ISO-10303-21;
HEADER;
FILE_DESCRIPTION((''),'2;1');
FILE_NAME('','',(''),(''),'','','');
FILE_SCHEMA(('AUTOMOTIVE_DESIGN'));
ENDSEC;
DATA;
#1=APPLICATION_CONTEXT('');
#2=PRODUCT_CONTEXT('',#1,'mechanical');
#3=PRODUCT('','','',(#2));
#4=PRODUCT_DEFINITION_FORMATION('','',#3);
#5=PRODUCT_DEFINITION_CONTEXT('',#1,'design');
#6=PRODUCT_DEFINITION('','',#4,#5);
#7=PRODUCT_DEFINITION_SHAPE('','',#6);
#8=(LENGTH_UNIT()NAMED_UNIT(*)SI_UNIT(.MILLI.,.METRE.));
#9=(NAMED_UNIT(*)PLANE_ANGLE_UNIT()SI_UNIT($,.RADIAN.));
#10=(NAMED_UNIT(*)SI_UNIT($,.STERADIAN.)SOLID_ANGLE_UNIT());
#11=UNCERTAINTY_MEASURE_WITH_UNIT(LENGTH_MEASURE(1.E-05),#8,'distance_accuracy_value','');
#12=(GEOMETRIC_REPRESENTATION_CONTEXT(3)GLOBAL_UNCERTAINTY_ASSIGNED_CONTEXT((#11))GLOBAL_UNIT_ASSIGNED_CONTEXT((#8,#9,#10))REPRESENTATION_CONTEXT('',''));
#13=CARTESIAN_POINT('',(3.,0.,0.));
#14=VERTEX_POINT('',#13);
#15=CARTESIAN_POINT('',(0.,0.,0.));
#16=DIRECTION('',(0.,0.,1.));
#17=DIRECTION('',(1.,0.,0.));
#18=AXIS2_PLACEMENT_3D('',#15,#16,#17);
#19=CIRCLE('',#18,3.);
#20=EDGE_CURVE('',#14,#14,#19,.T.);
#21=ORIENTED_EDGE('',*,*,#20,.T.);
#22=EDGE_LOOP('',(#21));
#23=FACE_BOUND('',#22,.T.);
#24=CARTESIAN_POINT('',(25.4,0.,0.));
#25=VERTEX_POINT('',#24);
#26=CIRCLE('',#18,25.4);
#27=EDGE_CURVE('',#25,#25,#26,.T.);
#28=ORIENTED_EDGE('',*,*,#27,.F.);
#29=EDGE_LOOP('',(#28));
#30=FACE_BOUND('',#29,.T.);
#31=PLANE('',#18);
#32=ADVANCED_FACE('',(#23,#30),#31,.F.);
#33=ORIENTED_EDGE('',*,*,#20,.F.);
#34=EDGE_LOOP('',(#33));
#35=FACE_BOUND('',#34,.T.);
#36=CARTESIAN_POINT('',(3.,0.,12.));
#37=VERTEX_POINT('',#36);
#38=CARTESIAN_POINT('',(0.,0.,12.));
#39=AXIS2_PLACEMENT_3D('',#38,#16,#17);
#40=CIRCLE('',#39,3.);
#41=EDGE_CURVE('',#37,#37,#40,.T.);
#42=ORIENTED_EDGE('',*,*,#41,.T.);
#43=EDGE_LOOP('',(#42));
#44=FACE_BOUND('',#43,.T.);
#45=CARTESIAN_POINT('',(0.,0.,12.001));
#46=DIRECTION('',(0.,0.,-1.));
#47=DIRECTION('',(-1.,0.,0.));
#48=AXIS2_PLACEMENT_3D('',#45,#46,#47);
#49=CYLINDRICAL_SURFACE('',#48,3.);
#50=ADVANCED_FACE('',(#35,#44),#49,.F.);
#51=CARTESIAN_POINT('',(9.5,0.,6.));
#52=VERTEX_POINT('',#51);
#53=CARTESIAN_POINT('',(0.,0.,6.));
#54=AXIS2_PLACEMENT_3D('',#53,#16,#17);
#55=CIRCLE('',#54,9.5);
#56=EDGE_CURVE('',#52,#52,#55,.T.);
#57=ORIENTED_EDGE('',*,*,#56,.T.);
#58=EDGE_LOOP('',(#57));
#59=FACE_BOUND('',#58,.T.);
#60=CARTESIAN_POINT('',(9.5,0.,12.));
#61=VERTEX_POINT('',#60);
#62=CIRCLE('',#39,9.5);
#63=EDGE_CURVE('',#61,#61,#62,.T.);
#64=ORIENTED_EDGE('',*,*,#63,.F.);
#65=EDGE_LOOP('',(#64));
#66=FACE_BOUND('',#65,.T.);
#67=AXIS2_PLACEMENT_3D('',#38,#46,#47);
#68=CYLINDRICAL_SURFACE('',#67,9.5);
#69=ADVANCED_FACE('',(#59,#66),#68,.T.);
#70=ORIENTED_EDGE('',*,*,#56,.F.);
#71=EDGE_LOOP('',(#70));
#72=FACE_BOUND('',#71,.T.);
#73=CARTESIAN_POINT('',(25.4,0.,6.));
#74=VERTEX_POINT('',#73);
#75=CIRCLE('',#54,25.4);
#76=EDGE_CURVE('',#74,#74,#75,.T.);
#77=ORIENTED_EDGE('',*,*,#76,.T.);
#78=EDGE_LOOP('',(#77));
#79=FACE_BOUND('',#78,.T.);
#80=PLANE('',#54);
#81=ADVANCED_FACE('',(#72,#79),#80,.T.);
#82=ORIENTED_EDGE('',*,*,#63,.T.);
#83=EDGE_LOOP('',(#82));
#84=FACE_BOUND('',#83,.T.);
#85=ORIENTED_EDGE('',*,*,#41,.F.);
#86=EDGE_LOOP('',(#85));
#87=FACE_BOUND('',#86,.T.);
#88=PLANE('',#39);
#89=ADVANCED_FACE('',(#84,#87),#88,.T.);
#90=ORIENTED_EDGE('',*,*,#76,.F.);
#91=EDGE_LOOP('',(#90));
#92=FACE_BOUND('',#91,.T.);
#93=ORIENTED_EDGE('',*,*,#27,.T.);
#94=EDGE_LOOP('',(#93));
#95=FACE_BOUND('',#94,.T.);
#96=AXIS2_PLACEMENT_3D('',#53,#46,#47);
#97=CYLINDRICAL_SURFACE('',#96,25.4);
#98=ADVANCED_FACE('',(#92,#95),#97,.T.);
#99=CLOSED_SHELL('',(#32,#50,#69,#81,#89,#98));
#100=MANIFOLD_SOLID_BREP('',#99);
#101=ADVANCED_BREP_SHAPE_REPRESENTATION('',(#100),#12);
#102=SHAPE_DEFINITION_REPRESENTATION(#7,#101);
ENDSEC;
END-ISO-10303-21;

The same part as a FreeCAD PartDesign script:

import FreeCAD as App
import Part
import Sketcher
Q = App.Units.Quantity

doc = App.newDocument("Part")
body = doc.addObject("PartDesign::Body", "Body")

# Sketch on XY plane
sketch1 = body.newObject("Sketcher::SketchObject", "Sketch")
sketch1.AttachmentSupport = (doc.getObject("XY_Plane"), [""])
sketch1.MapMode = "FlatFace"
sketch1.addGeometry(Part.Circle(App.Vector(0, 0, 0), App.Vector(0, 0, 1), 25.4), False)
sketch1.addConstraint(Sketcher.Constraint("Coincident", 0, 3, -1, 1))
sketch1.addConstraint(Sketcher.Constraint("Diameter", 0, Q("50.8 mm")))
pad1 = body.newObject("PartDesign::Pad", "Pad")
pad1.Profile = sketch1
pad1.Length = 6

# Sketch on XY plane
sketch2 = body.newObject("Sketcher::SketchObject", "Sketch001")
sketch2.AttachmentSupport = (doc.getObject("XY_Plane"), [""])
sketch2.MapMode = "FlatFace"
sketch2.AttachmentOffset = App.Placement(App.Vector(0, 0, 6), App.Rotation())
sketch2.addGeometry(Part.Circle(App.Vector(0, 0, 0), App.Vector(0, 0, 1), 9.5), False)
sketch2.addConstraint(Sketcher.Constraint("Coincident", 0, 3, -1, 1))
sketch2.addConstraint(Sketcher.Constraint("Diameter", 0, Q("19 mm")))
pad2 = body.newObject("PartDesign::Pad", "Pad001")
pad2.Profile = sketch2
pad2.Length = 6

# Sketch on XY plane
sketch3 = body.newObject("Sketcher::SketchObject", "Sketch002")
sketch3.AttachmentSupport = (doc.getObject("XY_Plane"), [""])
sketch3.MapMode = "FlatFace"
sketch3.addGeometry(Part.Circle(App.Vector(0, 0, 0), App.Vector(0, 0, 1), 3), False)
sketch3.addConstraint(Sketcher.Constraint("Coincident", 0, 3, -1, 1))
sketch3.addConstraint(Sketcher.Constraint("Diameter", 0, Q("6 mm")))
pocket1 = body.newObject("PartDesign::Pocket", "Pocket")
pocket1.Profile = sketch3
pocket1.Type = "UpToFirst"
pocket1.Reversed = True

doc.recompute()
